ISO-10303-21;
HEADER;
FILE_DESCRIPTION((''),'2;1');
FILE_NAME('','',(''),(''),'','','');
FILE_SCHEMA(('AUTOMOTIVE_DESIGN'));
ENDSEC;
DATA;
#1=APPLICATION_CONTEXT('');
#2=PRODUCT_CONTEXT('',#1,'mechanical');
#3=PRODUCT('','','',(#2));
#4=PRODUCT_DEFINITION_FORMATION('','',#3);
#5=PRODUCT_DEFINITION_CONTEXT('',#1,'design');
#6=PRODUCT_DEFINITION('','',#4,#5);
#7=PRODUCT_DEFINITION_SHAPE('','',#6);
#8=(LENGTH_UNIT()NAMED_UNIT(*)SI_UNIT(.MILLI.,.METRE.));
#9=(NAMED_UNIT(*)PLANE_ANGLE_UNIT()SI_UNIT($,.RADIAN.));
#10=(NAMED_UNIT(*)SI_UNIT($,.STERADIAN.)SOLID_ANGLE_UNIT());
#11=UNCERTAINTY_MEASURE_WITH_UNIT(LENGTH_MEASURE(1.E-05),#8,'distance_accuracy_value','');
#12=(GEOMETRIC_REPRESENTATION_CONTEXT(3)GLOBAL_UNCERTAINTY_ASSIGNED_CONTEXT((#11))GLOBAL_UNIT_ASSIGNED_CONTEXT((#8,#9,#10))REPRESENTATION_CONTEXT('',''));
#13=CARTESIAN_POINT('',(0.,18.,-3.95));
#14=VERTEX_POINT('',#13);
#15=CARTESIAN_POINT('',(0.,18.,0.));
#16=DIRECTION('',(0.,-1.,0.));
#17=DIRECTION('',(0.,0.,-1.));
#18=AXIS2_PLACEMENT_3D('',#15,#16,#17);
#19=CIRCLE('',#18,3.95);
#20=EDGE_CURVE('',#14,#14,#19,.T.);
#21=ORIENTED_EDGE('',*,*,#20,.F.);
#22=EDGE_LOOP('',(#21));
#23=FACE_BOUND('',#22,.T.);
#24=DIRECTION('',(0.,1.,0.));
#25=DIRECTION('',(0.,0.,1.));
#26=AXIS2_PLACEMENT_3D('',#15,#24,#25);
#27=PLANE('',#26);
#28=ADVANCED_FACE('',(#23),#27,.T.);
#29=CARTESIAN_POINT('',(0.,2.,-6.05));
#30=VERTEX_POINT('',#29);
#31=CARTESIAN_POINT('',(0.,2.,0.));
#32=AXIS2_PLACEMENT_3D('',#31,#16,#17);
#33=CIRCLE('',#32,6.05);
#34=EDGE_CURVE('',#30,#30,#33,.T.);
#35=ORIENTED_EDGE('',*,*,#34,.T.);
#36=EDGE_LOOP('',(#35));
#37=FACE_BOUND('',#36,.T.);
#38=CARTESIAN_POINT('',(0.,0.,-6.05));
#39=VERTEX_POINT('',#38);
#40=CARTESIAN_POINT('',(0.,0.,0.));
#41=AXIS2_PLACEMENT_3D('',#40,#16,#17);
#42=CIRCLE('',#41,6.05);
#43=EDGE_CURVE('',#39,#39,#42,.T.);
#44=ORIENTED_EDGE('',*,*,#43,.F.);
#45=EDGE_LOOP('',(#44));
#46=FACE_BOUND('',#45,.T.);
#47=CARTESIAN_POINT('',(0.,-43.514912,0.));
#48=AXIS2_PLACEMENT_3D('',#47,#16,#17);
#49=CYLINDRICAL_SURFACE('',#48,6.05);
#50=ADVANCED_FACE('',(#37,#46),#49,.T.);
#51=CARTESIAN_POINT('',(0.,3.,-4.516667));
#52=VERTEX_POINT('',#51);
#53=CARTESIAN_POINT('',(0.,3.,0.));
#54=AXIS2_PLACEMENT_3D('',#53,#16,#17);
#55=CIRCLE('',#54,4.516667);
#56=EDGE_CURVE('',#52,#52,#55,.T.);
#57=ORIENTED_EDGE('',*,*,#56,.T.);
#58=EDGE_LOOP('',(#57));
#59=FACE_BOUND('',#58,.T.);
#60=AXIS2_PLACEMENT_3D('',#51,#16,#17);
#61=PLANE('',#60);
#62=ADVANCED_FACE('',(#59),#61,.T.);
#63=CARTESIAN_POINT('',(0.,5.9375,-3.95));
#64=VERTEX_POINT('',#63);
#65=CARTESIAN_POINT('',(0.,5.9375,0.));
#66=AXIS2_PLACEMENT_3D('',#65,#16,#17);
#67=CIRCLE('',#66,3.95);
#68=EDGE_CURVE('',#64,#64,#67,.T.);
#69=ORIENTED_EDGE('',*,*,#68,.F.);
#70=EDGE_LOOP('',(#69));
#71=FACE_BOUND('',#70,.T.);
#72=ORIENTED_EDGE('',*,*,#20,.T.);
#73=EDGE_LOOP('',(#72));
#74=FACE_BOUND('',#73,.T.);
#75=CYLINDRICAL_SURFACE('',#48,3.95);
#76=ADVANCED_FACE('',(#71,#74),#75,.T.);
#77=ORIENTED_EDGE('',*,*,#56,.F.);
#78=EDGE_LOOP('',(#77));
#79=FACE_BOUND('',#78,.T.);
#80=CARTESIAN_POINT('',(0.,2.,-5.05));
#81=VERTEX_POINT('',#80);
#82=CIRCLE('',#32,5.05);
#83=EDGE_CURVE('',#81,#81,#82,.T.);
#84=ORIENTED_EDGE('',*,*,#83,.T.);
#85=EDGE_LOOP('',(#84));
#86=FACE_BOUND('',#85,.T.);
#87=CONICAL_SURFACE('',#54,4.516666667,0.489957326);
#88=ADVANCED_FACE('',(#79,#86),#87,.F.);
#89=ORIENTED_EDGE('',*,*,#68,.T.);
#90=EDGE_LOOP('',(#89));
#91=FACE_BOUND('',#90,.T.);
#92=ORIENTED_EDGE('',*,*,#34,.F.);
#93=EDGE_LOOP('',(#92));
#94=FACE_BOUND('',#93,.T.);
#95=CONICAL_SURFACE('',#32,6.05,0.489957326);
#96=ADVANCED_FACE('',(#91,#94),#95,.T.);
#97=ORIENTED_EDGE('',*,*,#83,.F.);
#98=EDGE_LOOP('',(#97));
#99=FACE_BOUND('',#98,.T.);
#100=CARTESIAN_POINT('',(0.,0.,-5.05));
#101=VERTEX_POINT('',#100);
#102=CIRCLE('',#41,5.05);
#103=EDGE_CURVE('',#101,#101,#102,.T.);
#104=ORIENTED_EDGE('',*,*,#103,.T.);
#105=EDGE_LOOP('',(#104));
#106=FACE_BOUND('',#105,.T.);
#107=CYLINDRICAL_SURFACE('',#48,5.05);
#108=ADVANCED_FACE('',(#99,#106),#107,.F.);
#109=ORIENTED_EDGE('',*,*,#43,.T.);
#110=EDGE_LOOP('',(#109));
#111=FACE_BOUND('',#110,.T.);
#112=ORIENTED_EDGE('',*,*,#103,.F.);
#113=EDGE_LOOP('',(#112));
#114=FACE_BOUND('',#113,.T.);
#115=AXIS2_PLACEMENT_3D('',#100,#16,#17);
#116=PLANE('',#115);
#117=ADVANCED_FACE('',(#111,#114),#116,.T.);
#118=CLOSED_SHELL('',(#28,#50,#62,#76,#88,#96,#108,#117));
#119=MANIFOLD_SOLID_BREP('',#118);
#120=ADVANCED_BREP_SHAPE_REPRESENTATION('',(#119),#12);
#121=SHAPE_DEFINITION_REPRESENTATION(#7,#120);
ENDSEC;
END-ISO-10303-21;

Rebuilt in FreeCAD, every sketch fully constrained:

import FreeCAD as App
import Part
import Sketcher

doc = App.newDocument("Part")
params = doc.addObject("Spreadsheet::Sheet", "Params")
for row, (alias, value) in enumerate([
    ("sketch1_width", "2 mm"),
    ("sketch1_width2", "15 mm"),
    ("sketch1_height", "1 mm"),
    ("sketch1_height2", "3.95 mm"),
    ("revolution_angle", "360 deg"),
], start=1):
    params.set(f"A{row}", alias)
    params.set(f"B{row}", "=" + value)
    params.setAlias(f"B{row}", alias)

body = doc.addObject("PartDesign::Body", "Body")

# Sketch on YZ plane
sketch1 = body.newObject("Sketcher::SketchObject", "Sketch")
sketch1.AttachmentSupport = (doc.getObject("YZ_Plane"), [""])
sketch1.MapMode = "FlatFace"
sketch1.addGeometry([
    Part.LineSegment(App.Vector(2, -5, 0), App.Vector(0, -5, 0)),  # 0
    Part.LineSegment(App.Vector(0, -5, 0), App.Vector(0, -6, 0)),  # 1
    Part.LineSegment(App.Vector(0, -6, 0), App.Vector(2, -6, 0)),  # 2
    Part.LineSegment(App.Vector(2, -6, 0), App.Vector(5.9, -4, 0)),  # 3
    Part.LineSegment(App.Vector(5.9, -4, 0), App.Vector(18, -4, 0)),  # 4
    Part.LineSegment(App.Vector(18, -4, 0), App.Vector(18, 0, 0)),  # 5
    Part.LineSegment(App.Vector(18, 0, 0), App.Vector(3, 0, 0)),  # 6
    Part.LineSegment(App.Vector(3, 0, 0), App.Vector(3, -4.5, 0)),  # 7
    Part.LineSegment(App.Vector(3, -4.5, 0), App.Vector(2, -5, 0)),  # 8
], False)
sketch1.addConstraint([
    Sketcher.Constraint("Coincident", 0, 2, 1, 1),
    Sketcher.Constraint("Coincident", 1, 2, 2, 1),
    Sketcher.Constraint("Coincident", 2, 2, 3, 1),
    Sketcher.Constraint("Coincident", 3, 2, 4, 1),
    Sketcher.Constraint("Coincident", 4, 2, 5, 1),
    Sketcher.Constraint("Coincident", 5, 2, 6, 1),
    Sketcher.Constraint("Coincident", 6, 2, 7, 1),
    Sketcher.Constraint("Coincident", 7, 2, 8, 1),
    Sketcher.Constraint("Coincident", 8, 2, 0, 1),
    Sketcher.Constraint("Horizontal", 0),
    Sketcher.Constraint("Vertical", 1),
    Sketcher.Constraint("Horizontal", 2),
    Sketcher.Constraint("Horizontal", 4),
    Sketcher.Constraint("Vertical", 5),
    Sketcher.Constraint("Horizontal", 6),
    Sketcher.Constraint("Vertical", 7),
    Sketcher.Constraint("PointOnObject", 0, 2, -2),
    Sketcher.Constraint("PointOnObject", 5, 2, -1),
    Sketcher.Constraint("Parallel", 3, 8),
    Sketcher.Constraint("Vertical", 2, 2, 8, 2),
    Sketcher.Constraint("DistanceX", 0, 2, 0, 1, 2.0),
    Sketcher.Constraint("DistanceX", 6, 2, 6, 1, 15.0),
    Sketcher.Constraint("DistanceY", 1, 2, 1, 1, 1.0),
    Sketcher.Constraint("DistanceX", -1, 1, 4, 2, 18.0),
    Sketcher.Constraint("DistanceY", 5, 1, 5, 2, 3.95),
    Sketcher.Constraint("DistanceY", 2, 2, 3, 2, 2.1),
    Sketcher.Constraint("DistanceX", 4, 1, 4, 2, 12.0625),
])
sketch1.setExpression("Constraints[20]", "Params.sketch1_width")
sketch1.setExpression("Constraints[21]", "Params.sketch1_width2")
sketch1.setExpression("Constraints[22]", "Params.sketch1_height")
sketch1.setExpression("Constraints[24]", "Params.sketch1_height2")
revolution = body.newObject("PartDesign::Revolution", "Revolution")
revolution.Profile = sketch1
revolution.ReferenceAxis = (sketch1, ["H_Axis"])
revolution.setExpression("Angle", "Params.revolution_angle")

doc.recompute()
